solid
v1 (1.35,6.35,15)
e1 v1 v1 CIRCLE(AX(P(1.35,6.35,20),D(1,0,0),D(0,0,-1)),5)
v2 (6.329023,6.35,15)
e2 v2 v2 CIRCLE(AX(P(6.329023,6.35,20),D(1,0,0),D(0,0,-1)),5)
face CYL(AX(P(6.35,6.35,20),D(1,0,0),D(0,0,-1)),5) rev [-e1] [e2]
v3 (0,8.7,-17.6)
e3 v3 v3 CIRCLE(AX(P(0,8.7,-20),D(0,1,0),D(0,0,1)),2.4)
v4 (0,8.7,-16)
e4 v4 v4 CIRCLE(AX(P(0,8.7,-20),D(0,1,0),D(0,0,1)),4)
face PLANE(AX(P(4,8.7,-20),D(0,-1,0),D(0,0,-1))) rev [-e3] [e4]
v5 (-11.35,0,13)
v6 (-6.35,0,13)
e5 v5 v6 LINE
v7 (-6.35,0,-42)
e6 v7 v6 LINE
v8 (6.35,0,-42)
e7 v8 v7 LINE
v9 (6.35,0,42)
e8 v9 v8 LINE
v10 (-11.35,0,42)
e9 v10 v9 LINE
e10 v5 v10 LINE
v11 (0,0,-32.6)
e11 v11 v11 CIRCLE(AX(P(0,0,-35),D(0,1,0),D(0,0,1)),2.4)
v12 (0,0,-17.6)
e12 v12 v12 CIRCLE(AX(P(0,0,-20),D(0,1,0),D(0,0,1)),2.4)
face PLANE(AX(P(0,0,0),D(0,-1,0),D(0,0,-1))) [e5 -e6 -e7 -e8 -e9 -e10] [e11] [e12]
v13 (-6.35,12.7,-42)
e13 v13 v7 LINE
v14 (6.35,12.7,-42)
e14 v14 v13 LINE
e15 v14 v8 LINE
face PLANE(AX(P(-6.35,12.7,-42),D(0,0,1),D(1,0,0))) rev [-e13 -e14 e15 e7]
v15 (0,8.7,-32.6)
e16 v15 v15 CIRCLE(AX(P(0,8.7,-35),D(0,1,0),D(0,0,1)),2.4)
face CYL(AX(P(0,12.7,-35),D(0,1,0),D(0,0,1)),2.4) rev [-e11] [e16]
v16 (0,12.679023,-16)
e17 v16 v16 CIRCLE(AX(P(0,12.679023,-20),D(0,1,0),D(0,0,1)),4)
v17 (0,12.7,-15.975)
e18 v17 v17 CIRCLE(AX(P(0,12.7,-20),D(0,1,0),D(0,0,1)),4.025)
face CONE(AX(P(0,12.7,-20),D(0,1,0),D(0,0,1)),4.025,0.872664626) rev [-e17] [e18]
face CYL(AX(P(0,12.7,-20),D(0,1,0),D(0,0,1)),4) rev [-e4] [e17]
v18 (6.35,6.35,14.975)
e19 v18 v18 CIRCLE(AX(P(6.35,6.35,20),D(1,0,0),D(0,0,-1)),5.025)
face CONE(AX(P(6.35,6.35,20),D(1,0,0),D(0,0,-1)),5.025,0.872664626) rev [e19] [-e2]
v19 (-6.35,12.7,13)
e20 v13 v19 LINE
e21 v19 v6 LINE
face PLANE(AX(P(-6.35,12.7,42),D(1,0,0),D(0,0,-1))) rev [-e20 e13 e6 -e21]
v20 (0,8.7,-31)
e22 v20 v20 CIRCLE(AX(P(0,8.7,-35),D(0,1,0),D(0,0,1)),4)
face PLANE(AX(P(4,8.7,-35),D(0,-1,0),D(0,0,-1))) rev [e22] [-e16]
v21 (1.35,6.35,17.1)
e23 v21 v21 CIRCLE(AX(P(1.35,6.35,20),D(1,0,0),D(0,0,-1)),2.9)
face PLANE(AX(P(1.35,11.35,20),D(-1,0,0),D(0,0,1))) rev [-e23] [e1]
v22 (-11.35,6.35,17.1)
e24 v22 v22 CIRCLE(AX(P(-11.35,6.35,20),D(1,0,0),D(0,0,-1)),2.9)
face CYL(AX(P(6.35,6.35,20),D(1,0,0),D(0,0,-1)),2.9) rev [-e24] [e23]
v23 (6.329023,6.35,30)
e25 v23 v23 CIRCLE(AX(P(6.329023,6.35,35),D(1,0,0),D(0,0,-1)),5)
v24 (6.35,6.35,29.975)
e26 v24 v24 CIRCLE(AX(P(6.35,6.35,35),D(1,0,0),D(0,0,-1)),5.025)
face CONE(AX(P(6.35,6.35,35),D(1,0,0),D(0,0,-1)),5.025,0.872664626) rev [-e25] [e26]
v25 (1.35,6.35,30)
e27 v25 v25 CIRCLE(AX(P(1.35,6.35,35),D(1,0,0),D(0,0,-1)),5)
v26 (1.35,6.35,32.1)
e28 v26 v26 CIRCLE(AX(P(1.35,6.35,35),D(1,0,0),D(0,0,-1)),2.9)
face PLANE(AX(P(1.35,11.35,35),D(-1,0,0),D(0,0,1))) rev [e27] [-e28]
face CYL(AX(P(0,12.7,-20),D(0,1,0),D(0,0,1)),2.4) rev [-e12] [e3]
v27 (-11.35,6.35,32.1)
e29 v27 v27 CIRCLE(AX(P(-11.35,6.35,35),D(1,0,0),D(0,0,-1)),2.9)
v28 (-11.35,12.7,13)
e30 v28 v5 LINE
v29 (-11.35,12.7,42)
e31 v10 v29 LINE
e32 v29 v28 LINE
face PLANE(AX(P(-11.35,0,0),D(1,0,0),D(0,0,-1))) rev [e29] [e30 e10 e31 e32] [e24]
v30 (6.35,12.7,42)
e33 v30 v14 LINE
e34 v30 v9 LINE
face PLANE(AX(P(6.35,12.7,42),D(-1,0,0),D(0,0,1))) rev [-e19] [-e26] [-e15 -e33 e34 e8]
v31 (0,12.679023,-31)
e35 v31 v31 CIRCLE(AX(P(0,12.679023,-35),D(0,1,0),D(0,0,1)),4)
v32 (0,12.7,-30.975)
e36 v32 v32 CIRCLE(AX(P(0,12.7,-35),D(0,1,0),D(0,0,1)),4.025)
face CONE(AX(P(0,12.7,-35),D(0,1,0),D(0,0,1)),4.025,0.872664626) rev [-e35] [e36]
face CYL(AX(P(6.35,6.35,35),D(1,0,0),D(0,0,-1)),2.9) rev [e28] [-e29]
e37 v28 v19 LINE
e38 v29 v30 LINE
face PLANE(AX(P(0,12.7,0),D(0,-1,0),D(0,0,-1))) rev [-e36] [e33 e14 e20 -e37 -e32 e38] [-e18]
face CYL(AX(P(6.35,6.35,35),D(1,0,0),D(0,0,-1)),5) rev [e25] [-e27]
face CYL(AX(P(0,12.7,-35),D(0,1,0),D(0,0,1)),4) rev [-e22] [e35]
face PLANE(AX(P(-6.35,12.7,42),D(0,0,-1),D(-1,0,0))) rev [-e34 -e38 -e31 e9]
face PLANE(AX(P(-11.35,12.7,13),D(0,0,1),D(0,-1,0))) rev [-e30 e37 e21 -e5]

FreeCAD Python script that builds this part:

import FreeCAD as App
import Part
import Sketcher
from FreeCAD import Vector
Q = App.Units.Quantity

doc = App.newDocument("Part")
params = doc.addObject("Spreadsheet::Sheet", "Params")
for row, (alias, value) in enumerate([
    ("sketch1_height", "84 mm"),
    ("sketch1_width", "12.7 mm"),
    ("pad1_length", "12.7 mm"),
    ("sketch2_width", "12.7 mm"),
    ("sketch2_width2", "8.7 mm"),
    ("sketch2_height", "1.6 mm"),
    ("sketch2_height2", "2.4 mm"),
    ("groove_angle", "360 deg"),
    ("linearpattern_pitch", "15 mm"),
    ("sketch3_height", "29 mm"),
    ("sketch3_width", "12.7 mm"),
    ("pad2_length", "5 mm"),
    ("sketch4_width", "17.7 mm"),
    ("sketch4_width2", "12.7 mm"),
    ("sketch4_height", "2.1 mm"),
    ("sketch4_height2", "2.9 mm"),
    ("groove2_angle", "360 deg"),
    ("linearpattern2_pitch", "15 mm"),
], start=1):
    params.set(f"A{row}", alias)
    params.set(f"B{row}", "=" + value)
    params.setAlias(f"B{row}", alias)

body = doc.addObject("PartDesign::Body", "Body")

# Sketch on XZ plane
sketch1 = body.newObject("Sketcher::SketchObject", "Sketch")
sketch1.AttachmentSupport = (doc.getObject("XZ_Plane"), [""])
sketch1.MapMode = "FlatFace"
sketch1.addGeometry(Part.LineSegment(Vector(-6, -42, 0), Vector(-6, 42, 0)), False)
sketch1.addGeometry(Part.LineSegment(Vector(-6, 42, 0), Vector(6, 42, 0)), False)
sketch1.addGeometry(Part.LineSegment(Vector(6, 42, 0), Vector(6, -42, 0)), False)
sketch1.addGeometry(Part.LineSegment(Vector(6, -42, 0), Vector(-6, -42, 0)), False)
sketch1.addConstraint(Sketcher.Constraint("Coincident", 0, 2, 1, 1))
sketch1.addConstraint(Sketcher.Constraint("Coincident", 1, 2, 2, 1))
sketch1.addConstraint(Sketcher.Constraint("Coincident", 2, 2, 3, 1))
sketch1.addConstraint(Sketcher.Constraint("Coincident", 3, 2, 0, 1))
sketch1.addConstraint(Sketcher.Constraint("Vertical", 0))
sketch1.addConstraint(Sketcher.Constraint("Horizontal", 1))
sketch1.addConstraint(Sketcher.Constraint("Vertical", 2))
sketch1.addConstraint(Sketcher.Constraint("Horizontal", 3))
sketch1.addConstraint(Sketcher.Constraint("Symmetric", 0, 2, 2, 2, -1, 1))
sketch1.addConstraint(Sketcher.Constraint("DistanceY", 0, 1, 0, 2, Q("84 mm")))
sketch1.addConstraint(Sketcher.Constraint("DistanceX", 1, 1, 1, 2, Q("12.7 mm")))
sketch1.setExpression("Constraints[9]", "Params.sketch1_height")
sketch1.setExpression("Constraints[10]", "Params.sketch1_width")
pad1 = body.newObject("PartDesign::Pad", "Pad")
pad1.Profile = sketch1
pad1.setExpression("Length", "Params.pad1_length")
pad1.Reversed = True

# Sketch on YZ plane
sketch2 = body.newObject("Sketcher::SketchObject", "Sketch001")
sketch2.AttachmentSupport = (doc.getObject("YZ_Plane"), [""])
sketch2.MapMode = "FlatFace"
sketch2.addGeometry(Part.LineSegment(Vector(0, -35, 0), Vector(12.7, -35, 0)), False)
sketch2.addGeometry(Part.LineSegment(Vector(12.7, -35, 0), Vector(12.7, -30.975, 0)), False)
sketch2.addGeometry(Part.LineSegment(Vector(12.7, -30.975, 0), Vector(12.679, -31, 0)), False)
sketch2.addGeometry(Part.LineSegment(Vector(12.679, -31, 0), Vector(8.7, -31, 0)), False)
sketch2.addGeometry(Part.LineSegment(Vector(8.7, -31, 0), Vector(8.7, -32.6, 0)), False)
sketch2.addGeometry(Part.LineSegment(Vector(8.7, -32.6, 0), Vector(0, -32.6, 0)), False)
sketch2.addGeometry(Part.LineSegment(Vector(0, -32.6, 0), Vector(0, -35, 0)), False)
sketch2.addGeometry(Part.LineSegment(Vector(12.7, -35, 0), Vector(0, -35, 0)), True)  # axis
sketch2.addConstraint(Sketcher.Constraint("Coincident", 0, 2, 1, 1))
sketch2.addConstraint(Sketcher.Constraint("Coincident", 1, 2, 2, 1))
sketch2.addConstraint(Sketcher.Constraint("Coincident", 2, 2, 3, 1))
sketch2.addConstraint(Sketcher.Constraint("Coincident", 3, 2, 4, 1))
sketch2.addConstraint(Sketcher.Constraint("Coincident", 4, 2, 5, 1))
sketch2.addConstraint(Sketcher.Constraint("Coincident", 5, 2, 6, 1))
sketch2.addConstraint(Sketcher.Constraint("Coincident", 6, 2, 0, 1))
sketch2.addConstraint(Sketcher.Constraint("Horizontal", 0))
sketch2.addConstraint(Sketcher.Constraint("Vertical", 1))
sketch2.addConstraint(Sketcher.Constraint("Horizontal", 3))
sketch2.addConstraint(Sketcher.Constraint("Vertical", 4))
sketch2.addConstraint(Sketcher.Constraint("Horizontal", 5))
sketch2.addConstraint(Sketcher.Constraint("Vertical", 6))
sketch2.addConstraint(Sketcher.Constraint("Horizontal", 7))
sketch2.addConstraint(Sketcher.Constraint("Coincident", 7, 1, 0, 2))
sketch2.addConstraint(Sketcher.Constraint("PointOnObject", 5, 2, -2))
sketch2.addConstraint(Sketcher.Constraint("PointOnObject", 7, 2, -2))
sketch2.addConstraint(Sketcher.Constraint("Angle", 2, Q("-130 deg")))
sketch2.addConstraint(Sketcher.Constraint("DistanceX", 0, 1, 0, 2, Q("12.7 mm")))
sketch2.addConstraint(Sketcher.Constraint("DistanceX", 5, 2, 5, 1, Q("8.7 mm")))
sketch2.addConstraint(Sketcher.Constraint("DistanceY", 4, 2, 4, 1, Q("1.6 mm")))
sketch2.addConstraint(Sketcher.Constraint("DistanceY", 6, 2, 6, 1, Q("2.4 mm")))
sketch2.addConstraint(Sketcher.Constraint("DistanceY", 0, 2, -1, 1, Q("35 mm")))
sketch2.addConstraint(Sketcher.Constraint("DistanceY", 1, 1, 1, 2, Q("4.025 mm")))
sketch2.setExpression("Constraints[18]", "Params.sketch2_width")
sketch2.setExpression("Constraints[19]", "Params.sketch2_width2")
sketch2.setExpression("Constraints[20]", "Params.sketch2_height")
sketch2.setExpression("Constraints[21]", "Params.sketch2_height2")
groove = body.newObject("PartDesign::Groove", "Groove")
groove.Profile = sketch2
groove.ReferenceAxis = (sketch2, ["Axis0"])
groove.setExpression("Angle", "Params.groove_angle")
doc.recompute()

linearpattern = body.newObject("PartDesign::LinearPattern", "LinearPattern")
linearpattern.Originals = [groove]
linearpattern.Direction = (doc.getObject("Z_Axis"), [""])
linearpattern.Mode = "offset"
linearpattern.setExpression("Offset", "Params.linearpattern_pitch")
linearpattern.Occurrences = 2
body.Tip = linearpattern

# Sketch on YZ plane
sketch3 = body.newObject("Sketcher::SketchObject", "Sketch002")
sketch3.AttachmentSupport = (doc.getObject("YZ_Plane"), [""])
sketch3.MapMode = "FlatFace"
sketch3.AttachmentOffset = App.Placement(Vector(0, 0, -6.35), App.Rotation())
sketch3.addGeometry(Part.LineSegment(Vector(13, 13, 0), Vector(0, 13, 0)), False)
sketch3.addGeometry(Part.LineSegment(Vector(0, 13, 0), Vector(0, 42, 0)), False)
sketch3.addGeometry(Part.LineSegment(Vector(0, 42, 0), Vector(13, 42, 0)), False)
sketch3.addGeometry(Part.LineSegment(Vector(13, 42, 0), Vector(13, 13, 0)), False)
sketch3.addConstraint(Sketcher.Constraint("Coincident", 0, 2, 1, 1))
sketch3.addConstraint(Sketcher.Constraint("Coincident", 1, 2, 2, 1))
sketch3.addConstraint(Sketcher.Constraint("Coincident", 2, 2, 3, 1))
sketch3.addConstraint(Sketcher.Constraint("Coincident", 3, 2, 0, 1))
sketch3.addConstraint(Sketcher.Constraint("Horizontal", 0))
sketch3.addConstraint(Sketcher.Constraint("Vertical", 1))
sketch3.addConstraint(Sketcher.Constraint("Horizontal", 2))
sketch3.addConstraint(Sketcher.Constraint("Vertical", 3))
sketch3.addConstraint(Sketcher.Constraint("PointOnObject", 0, 2, -2))
sketch3.addConstraint(Sketcher.Constraint("DistanceY", 1, 1, 1, 2, Q("29 mm")))
sketch3.addConstraint(Sketcher.Constraint("DistanceX", 0, 2, 0, 1, Q("12.7 mm")))
sketch3.addConstraint(Sketcher.Constraint("DistanceY", -1, 1, 0, 2, Q("13 mm")))
sketch3.setExpression("Constraints[9]", "Params.sketch3_height")
sketch3.setExpression("Constraints[10]", "Params.sketch3_width")
pad2 = body.newObject("PartDesign::Pad", "Pad001")
pad2.Profile = sketch3
pad2.setExpression("Length", "Params.pad2_length")
pad2.Reversed = True

# Sketch on XZ plane
sketch4 = body.newObject("Sketcher::SketchObject", "Sketch003")
sketch4.AttachmentSupport = (doc.getObject("XZ_Plane"), [""])
sketch4.MapMode = "FlatFace"
sketch4.AttachmentOffset = App.Placement(Vector(0, 0, -6.35), App.Rotation())
sketch4.addGeometry(Part.LineSegment(Vector(-11.35, 35, 0), Vector(6.35, 35, 0)), False)
sketch4.addGeometry(Part.LineSegment(Vector(6.35, 35, 0), Vector(6.35, 29.975, 0)), False)
sketch4.addGeometry(Part.LineSegment(Vector(6.35, 29.975, 0), Vector(6.329, 30, 0)), False)
sketch4.addGeometry(Part.LineSegment(Vector(6.329, 30, 0), Vector(1.35, 30, 0)), False)
sketch4.addGeometry(Part.LineSegment(Vector(1.35, 30, 0), Vector(1.35, 32.1, 0)), False)
sketch4.addGeometry(Part.LineSegment(Vector(1.35, 32.1, 0), Vector(-11.35, 32.1, 0)), False)
sketch4.addGeometry(Part.LineSegment(Vector(-11.35, 32.1, 0), Vector(-11.35, 35, 0)), False)
sketch4.addGeometry(Part.LineSegment(Vector(6.35, 35, 0), Vector(-11.35, 35, 0)), True)  # axis
sketch4.addConstraint(Sketcher.Constraint("Coincident", 0, 2, 1, 1))
sketch4.addConstraint(Sketcher.Constraint("Coincident", 1, 2, 2, 1))
sketch4.addConstraint(Sketcher.Constraint("Coincident", 2, 2, 3, 1))
sketch4.addConstraint(Sketcher.Constraint("Coincident", 3, 2, 4, 1))
sketch4.addConstraint(Sketcher.Constraint("Coincident", 4, 2, 5, 1))
sketch4.addConstraint(Sketcher.Constraint("Coincident", 5, 2, 6, 1))
sketch4.addConstraint(Sketcher.Constraint("Coincident", 6, 2, 0, 1))
sketch4.addConstraint(Sketcher.Constraint("Horizontal", 0))
sketch4.addConstraint(Sketcher.Constraint("Vertical", 1))
sketch4.addConstraint(Sketcher.Constraint("Horizontal", 3))
sketch4.addConstraint(Sketcher.Constraint("Vertical", 4))
sketch4.addConstraint(Sketcher.Constraint("Horizontal", 5))
sketch4.addConstraint(Sketcher.Constraint("Vertical", 6))
sketch4.addConstraint(Sketcher.Constraint("Horizontal", 7))
sketch4.addConstraint(Sketcher.Constraint("Coincident", 7, 1, 0, 2))
sketch4.addConstraint(Sketcher.Constraint("Vertical", 5, 2, 7, 2))
sketch4.addConstraint(Sketcher.Constraint("Angle", 2, Q("130 deg")))
sketch4.addConstraint(Sketcher.Constraint("DistanceX", 0, 1, 0, 2, Q("17.7 mm")))
sketch4.addConstraint(Sketcher.Constraint("DistanceX", 5, 2, 5, 1, Q("12.7 mm")))
sketch4.addConstraint(Sketcher.Constraint("DistanceY", 4, 1, 4, 2, Q("2.1 mm")))
sketch4.addConstraint(Sketcher.Constraint("DistanceY", 6, 1, 6, 2, Q("2.9 mm")))
sketch4.addConstraint(Sketcher.Constraint("DistanceY", -1, 1, 0, 2, Q("35 mm")))
sketch4.addConstraint(Sketcher.Constraint("DistanceY", 1, 2, 1, 1, Q("5.025 mm")))
sketch4.addConstraint(Sketcher.Constraint("DistanceX", -1, 1, 0, 2, Q("6.35 mm")))
sketch4.setExpression("Constraints[17]", "Params.sketch4_width")
sketch4.setExpression("Constraints[18]", "Params.sketch4_width2")
sketch4.setExpression("Constraints[19]", "Params.sketch4_height")
sketch4.setExpression("Constraints[20]", "Params.sketch4_height2")
groove2 = body.newObject("PartDesign::Groove", "Groove001")
groove2.Profile = sketch4
groove2.ReferenceAxis = (sketch4, ["Axis0"])
groove2.setExpression("Angle", "Params.groove2_angle")
doc.recompute()

linearpattern2 = body.newObject("PartDesign::LinearPattern", "LinearPattern001")
linearpattern2.Originals = [groove2]
linearpattern2.Direction = (doc.getObject("Z_Axis"), [""])
linearpattern2.Mode = "offset"
linearpattern2.setExpression("Offset", "Params.linearpattern2_pitch")
linearpattern2.Occurrences = 2
linearpattern2.Reversed = True
body.Tip = linearpattern2

doc.recompute()
